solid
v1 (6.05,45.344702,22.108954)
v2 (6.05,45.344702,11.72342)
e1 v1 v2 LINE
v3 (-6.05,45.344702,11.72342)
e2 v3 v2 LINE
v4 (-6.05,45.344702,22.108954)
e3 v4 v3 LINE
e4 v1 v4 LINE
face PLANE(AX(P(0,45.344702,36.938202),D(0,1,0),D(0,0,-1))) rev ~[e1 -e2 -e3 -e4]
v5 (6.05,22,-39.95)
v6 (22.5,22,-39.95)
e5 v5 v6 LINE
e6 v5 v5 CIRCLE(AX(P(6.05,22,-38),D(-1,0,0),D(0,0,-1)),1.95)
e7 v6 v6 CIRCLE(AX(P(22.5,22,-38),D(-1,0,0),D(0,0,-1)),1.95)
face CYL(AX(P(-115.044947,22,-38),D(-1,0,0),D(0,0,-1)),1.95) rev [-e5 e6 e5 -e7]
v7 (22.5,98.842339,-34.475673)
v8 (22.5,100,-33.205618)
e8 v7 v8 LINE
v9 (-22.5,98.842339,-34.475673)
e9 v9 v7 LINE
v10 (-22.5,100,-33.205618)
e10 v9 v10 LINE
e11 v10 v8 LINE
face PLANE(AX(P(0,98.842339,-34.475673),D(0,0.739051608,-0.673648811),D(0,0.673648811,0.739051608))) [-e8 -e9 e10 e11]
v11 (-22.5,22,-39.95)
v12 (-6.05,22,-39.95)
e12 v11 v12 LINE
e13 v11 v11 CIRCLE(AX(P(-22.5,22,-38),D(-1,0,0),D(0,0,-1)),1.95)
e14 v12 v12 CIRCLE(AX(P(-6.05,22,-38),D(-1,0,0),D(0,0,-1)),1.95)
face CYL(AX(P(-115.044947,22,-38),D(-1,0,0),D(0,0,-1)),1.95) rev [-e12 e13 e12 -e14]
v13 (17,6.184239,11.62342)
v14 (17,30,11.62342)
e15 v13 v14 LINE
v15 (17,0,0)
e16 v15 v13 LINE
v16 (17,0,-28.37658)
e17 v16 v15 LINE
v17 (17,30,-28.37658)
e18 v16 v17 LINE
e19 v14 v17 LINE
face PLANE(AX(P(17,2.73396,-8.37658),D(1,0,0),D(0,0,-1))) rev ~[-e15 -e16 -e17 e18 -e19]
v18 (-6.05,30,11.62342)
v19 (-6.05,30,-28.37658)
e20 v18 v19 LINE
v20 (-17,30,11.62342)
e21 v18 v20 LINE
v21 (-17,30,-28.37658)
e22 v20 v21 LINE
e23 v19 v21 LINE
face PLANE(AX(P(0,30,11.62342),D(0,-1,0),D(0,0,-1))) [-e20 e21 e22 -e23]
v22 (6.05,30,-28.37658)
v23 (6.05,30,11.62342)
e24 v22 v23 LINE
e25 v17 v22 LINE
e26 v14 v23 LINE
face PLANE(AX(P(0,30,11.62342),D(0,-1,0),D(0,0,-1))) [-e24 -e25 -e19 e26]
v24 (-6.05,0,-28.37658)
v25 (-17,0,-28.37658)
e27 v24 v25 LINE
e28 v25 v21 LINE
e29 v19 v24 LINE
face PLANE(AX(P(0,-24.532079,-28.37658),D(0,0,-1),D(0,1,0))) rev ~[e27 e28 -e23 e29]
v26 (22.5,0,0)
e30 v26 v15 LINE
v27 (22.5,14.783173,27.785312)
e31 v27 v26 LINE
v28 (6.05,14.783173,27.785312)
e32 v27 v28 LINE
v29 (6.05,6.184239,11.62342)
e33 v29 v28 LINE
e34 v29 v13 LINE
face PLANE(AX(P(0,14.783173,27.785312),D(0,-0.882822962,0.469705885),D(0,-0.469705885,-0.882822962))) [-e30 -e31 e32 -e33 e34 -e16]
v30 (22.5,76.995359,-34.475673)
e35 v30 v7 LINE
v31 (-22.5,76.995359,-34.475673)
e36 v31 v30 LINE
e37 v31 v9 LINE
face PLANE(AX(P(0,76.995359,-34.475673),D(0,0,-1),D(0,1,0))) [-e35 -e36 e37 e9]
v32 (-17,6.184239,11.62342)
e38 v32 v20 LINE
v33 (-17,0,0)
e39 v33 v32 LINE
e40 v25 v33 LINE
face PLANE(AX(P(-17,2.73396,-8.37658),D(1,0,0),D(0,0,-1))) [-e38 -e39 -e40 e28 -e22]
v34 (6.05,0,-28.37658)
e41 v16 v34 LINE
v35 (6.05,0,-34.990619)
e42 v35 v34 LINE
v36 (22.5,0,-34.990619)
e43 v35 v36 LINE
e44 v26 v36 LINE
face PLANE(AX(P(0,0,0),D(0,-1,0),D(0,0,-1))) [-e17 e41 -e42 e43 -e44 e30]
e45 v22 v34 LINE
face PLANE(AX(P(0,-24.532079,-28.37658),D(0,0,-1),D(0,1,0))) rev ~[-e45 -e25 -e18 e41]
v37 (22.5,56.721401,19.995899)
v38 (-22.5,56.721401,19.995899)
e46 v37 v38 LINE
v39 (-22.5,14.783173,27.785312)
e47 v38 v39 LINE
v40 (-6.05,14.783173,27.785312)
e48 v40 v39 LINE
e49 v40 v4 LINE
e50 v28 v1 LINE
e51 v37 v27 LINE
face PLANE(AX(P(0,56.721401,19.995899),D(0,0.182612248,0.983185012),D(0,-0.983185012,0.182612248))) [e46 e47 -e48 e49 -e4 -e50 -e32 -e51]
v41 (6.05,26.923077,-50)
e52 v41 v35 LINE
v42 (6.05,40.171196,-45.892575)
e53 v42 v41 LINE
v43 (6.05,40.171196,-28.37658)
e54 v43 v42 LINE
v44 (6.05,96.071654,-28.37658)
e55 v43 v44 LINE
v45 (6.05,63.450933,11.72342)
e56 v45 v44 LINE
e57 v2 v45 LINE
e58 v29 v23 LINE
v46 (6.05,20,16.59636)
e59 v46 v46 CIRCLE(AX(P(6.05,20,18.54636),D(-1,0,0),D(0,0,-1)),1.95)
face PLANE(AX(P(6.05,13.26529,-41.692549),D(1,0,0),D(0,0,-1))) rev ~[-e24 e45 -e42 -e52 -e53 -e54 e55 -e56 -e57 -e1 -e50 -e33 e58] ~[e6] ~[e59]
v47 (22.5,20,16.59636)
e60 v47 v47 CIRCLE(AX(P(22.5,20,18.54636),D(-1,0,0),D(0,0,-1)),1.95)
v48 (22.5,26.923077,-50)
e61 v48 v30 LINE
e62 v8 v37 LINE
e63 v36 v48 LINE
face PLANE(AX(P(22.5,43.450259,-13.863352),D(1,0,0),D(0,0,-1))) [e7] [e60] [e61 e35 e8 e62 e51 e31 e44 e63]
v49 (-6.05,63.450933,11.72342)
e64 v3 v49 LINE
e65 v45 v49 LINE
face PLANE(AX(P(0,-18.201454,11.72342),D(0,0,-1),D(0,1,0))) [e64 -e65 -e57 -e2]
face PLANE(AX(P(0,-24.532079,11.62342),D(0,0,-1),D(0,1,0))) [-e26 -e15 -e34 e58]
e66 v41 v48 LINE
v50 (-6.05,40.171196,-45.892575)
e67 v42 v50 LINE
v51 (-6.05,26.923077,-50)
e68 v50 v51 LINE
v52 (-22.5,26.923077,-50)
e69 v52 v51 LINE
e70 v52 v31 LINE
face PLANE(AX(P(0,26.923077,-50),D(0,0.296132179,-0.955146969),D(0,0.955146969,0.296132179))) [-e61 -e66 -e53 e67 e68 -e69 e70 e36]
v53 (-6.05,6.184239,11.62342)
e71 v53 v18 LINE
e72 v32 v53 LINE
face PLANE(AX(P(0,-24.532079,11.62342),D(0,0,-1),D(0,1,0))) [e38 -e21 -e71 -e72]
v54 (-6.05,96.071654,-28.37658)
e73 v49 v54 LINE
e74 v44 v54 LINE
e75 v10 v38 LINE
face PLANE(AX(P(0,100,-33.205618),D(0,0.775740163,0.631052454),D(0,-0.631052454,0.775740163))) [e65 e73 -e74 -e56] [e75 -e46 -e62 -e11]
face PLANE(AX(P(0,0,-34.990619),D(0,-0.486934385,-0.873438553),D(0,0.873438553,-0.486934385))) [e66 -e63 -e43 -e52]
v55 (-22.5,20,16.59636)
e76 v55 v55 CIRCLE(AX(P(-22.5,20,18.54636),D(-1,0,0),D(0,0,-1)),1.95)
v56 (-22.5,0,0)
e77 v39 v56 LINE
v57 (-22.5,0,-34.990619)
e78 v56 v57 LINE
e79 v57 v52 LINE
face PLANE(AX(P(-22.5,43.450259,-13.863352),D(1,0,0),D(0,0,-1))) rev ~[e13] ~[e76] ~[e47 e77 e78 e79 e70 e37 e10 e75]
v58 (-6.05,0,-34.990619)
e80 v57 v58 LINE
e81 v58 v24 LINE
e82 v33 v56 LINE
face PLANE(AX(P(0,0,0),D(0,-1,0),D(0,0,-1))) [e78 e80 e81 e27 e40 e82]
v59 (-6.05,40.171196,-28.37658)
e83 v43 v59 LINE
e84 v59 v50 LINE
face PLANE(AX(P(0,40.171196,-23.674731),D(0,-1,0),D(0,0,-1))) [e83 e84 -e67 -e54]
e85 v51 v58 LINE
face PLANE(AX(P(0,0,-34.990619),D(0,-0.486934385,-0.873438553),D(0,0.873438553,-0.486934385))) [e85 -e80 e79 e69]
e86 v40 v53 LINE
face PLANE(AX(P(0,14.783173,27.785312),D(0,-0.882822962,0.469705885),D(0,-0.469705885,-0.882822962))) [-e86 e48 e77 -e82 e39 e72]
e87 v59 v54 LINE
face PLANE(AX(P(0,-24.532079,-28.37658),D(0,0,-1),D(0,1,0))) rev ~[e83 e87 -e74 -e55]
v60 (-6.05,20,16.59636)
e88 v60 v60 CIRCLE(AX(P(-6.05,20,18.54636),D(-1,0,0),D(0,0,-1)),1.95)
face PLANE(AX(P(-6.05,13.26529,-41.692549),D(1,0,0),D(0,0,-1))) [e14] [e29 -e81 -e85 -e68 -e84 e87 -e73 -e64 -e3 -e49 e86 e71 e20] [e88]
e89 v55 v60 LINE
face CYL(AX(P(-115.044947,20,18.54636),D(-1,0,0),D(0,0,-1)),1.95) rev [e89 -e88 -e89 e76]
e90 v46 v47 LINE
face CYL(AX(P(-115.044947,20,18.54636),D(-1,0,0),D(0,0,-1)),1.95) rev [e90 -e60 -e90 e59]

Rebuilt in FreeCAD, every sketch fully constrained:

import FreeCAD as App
import Part
import Sketcher
from FreeCAD import Vector


def add_polygon(sketch, points):
    """Adds a closed chain of lines whose ends are joined by coincident constraints."""
    first, n = sketch.GeometryCount, len(points)
    for a, b in zip(points, points[1:] + points[:1]):
        sketch.addGeometry(Part.LineSegment(App.Vector(*a, 0), App.Vector(*b, 0)), False)
    for i in range(n):
        sketch.addConstraint(Sketcher.Constraint("Coincident", first + i, 2, first + (i + 1) % n, 1))

doc = App.newDocument("Part")
params = doc.addObject("Spreadsheet::Sheet", "Params")
for row, (alias, value) in enumerate([
    ("pad1_length", "45 mm"),
    ("sketch2_height", "40.1 mm"),
    ("pocket1_length", "12.1 mm"),
    ("sketch3_height", "40 mm"),
    ("pocket2_length", "34 mm"),
    ("sketch4_diameter", "3.9 mm"),
    ("pocket4_length", "12.1 mm"),
], start=1):
    params.set(f"A{row}", alias)
    params.set(f"B{row}", "=" + value)
    params.setAlias(f"B{row}", alias)

body = doc.addObject("PartDesign::Body", "Body")

# Sketch on YZ plane
sketch1 = body.newObject("Sketcher::SketchObject", "Sketch")
sketch1.AttachmentSupport = (doc.getObject("YZ_Plane"), [""])
sketch1.MapMode = "FlatFace"
add_polygon(sketch1, [(0, 0), (0, -35), (26.9, -50), (77, -34.5), (98.8, -34.5), (100, -33.2), (56.7, 20), (14.8, 27.8)])  # lines 0-7
sketch1.addConstraint([
    Sketcher.Constraint("Vertical", 0),
    Sketcher.Constraint("Horizontal", 3),
    Sketcher.Constraint("Coincident", 7, 2, -1, 1),
    Sketcher.Constraint("DistanceY", 1, 2, -1, 1, 50.0),
    Sketcher.Constraint("DistanceX", -1, 1, 4, 2, 100.0),
    Sketcher.Constraint("DistanceY", 0, 2, 4, 2, 1.785001),
    Sketcher.Constraint("DistanceX", 3, 1, 3, 2, 21.846981),
    Sketcher.Constraint("DistanceY", 0, 2, 0, 1, 34.990619),
    Sketcher.Constraint("DistanceX", -1, 1, 5, 2, 56.721401),
    Sketcher.Constraint("DistanceY", -1, 1, 5, 2, 19.995899),
    Sketcher.Constraint("Distance", 2, 52.423641),
    Sketcher.Constraint("Distance", 6, 42.655479),
    Sketcher.Constraint("DistanceX", -1, 1, 2, 2, 76.995359),
    Sketcher.Constraint("DistanceY", -1, 1, 6, 2, 27.785312),
    Sketcher.Constraint("DistanceX", 1, 2, 2, 2, 50.072282),
])
pad1 = body.newObject("PartDesign::Pad", "Pad")
pad1.Profile = sketch1
pad1.setExpression("Length", "Params.pad1_length")
pad1.Midplane = True

# Sketch on YZ plane
sketch2 = body.newObject("Sketcher::SketchObject", "Sketch001")
sketch2.AttachmentSupport = (doc.getObject("YZ_Plane"), [""])
sketch2.MapMode = "FlatFace"
add_polygon(sketch2, [(117, 12), (-18, 12), (-18, -28), (117, -28)])  # lines 0-3
sketch2.addConstraint([
    Sketcher.Constraint("Horizontal", 0),
    Sketcher.Constraint("Vertical", 1),
    Sketcher.Constraint("Horizontal", 2),
    Sketcher.Constraint("Vertical", 3),
    Sketcher.Constraint("DistanceY", 1, 2, 1, 1, 40.1),
    Sketcher.Constraint("DistanceX", 0, 2, 0, 1, 134.948719),
    Sketcher.Constraint("DistanceY", -1, 1, 0, 2, 11.72342),
    Sketcher.Constraint("DistanceX", 0, 2, -1, 1, 18.201454),
])
sketch2.setExpression("Constraints[8]", "Params.sketch2_height")
pocket1 = body.newObject("PartDesign::Pocket", "Pocket")
pocket1.Profile = sketch2
pocket1.setExpression("Length", "Params.pocket1_length")
pocket1.Midplane = True

# Sketch on YZ plane
sketch3 = body.newObject("Sketcher::SketchObject", "Sketch002")
sketch3.AttachmentSupport = (doc.getObject("YZ_Plane"), [""])
sketch3.MapMode = "FlatFace"
add_polygon(sketch3, [(30, 12), (-25, 12), (-25, -28), (30, -28)])  # lines 0-3
sketch3.addConstraint([
    Sketcher.Constraint("Horizontal", 0),
    Sketcher.Constraint("Vertical", 1),
    Sketcher.Constraint("Horizontal", 2),
    Sketcher.Constraint("Vertical", 3),
    Sketcher.Constraint("DistanceY", 1, 2, 1, 1, 40.0),
    Sketcher.Constraint("DistanceX", -1, 1, 2, 2, 30.0),
    Sketcher.Constraint("DistanceX", 0, 2, 0, 1, 54.532079),
    Sketcher.Constraint("DistanceY", -1, 1, 0, 2, 11.62342),
])
sketch3.setExpression("Constraints[8]", "Params.sketch3_height")
pocket2 = body.newObject("PartDesign::Pocket", "Pocket001")
pocket2.Profile = sketch3
pocket2.setExpression("Length", "Params.pocket2_length")
pocket2.Midplane = True

# Sketch on YZ plane
sketch4 = body.newObject("Sketcher::SketchObject", "Sketch003")
sketch4.AttachmentSupport = (doc.getObject("YZ_Plane"), [""])
sketch4.MapMode = "FlatFace"
sketch4.addGeometry([
    Part.Circle(Vector(20, 18.5, 0), Vector(0, 0, 1), 1.9),
    Part.Circle(Vector(22, -38, 0), Vector(0, 0, 1), 1.9),
], False)
sketch4.addConstraint([
    Sketcher.Constraint("Equal", 0, 1),
    Sketcher.Constraint("Diameter", 0, 3.9),
    Sketcher.Constraint("DistanceX", -1, 1, 0, 3, 20.0),
    Sketcher.Constraint("DistanceX", -1, 1, 1, 3, 22.0),
    Sketcher.Constraint("DistanceY", 1, 3, -1, 1, 38.0),
    Sketcher.Constraint("DistanceY", -1, 1, 0, 3, 18.54636),
])
sketch4.setExpression("Constraints[1]", "Params.sketch4_diameter")
pocket3 = body.newObject("PartDesign::Pocket", "Pocket002")
pocket3.Profile = sketch4
pocket3.Type = "ThroughAll"
pocket3.Midplane = True

# Sketch on YZ plane
sketch5 = body.newObject("Sketcher::SketchObject", "Sketch004")
sketch5.AttachmentSupport = (doc.getObject("YZ_Plane"), [""])
sketch5.MapMode = "FlatFace"
add_polygon(sketch5, [(45, 37), (-15, 37), (-15, 8), (45, 8)])  # lines 0-3
add_polygon(sketch5, [(40, -24), (-14, -24), (-14, -60), (40, -60)])  # lines 4-7
sketch5.addConstraint([
    Sketcher.Constraint("Horizontal", 0),
    Sketcher.Constraint("Vertical", 1),
    Sketcher.Constraint("Horizontal", 2),
    Sketcher.Constraint("Vertical", 3),
    Sketcher.Constraint("Horizontal", 4),
    Sketcher.Constraint("Vertical", 5),
    Sketcher.Constraint("Horizontal", 6),
    Sketcher.Constraint("Vertical", 7),
    Sketcher.Constraint("DistanceY", 4, 2, 1, 2, 31.718001),
    Sketcher.Constraint("DistanceX", 0, 2, 0, 1, 60.313821),
    Sketcher.Constraint("DistanceX", 4, 2, 4, 1, 53.811811),
    Sketcher.Constraint("DistanceY", 1, 2, 1, 1, 28.894933),
    Sketcher.Constraint("DistanceY", 5, 2, 5, 1, 36.035634),
    Sketcher.Constraint("DistanceX", 0, 2, -1, 1, 14.969118),
    Sketcher.Constraint("DistanceY", -1, 1, 1, 2, 8.04327),
    Sketcher.Constraint("DistanceX", 4, 2, -1, 1, 13.640616),
])
pocket4 = body.newObject("PartDesign::Pocket", "Pocket003")
pocket4.Profile = sketch5
pocket4.setExpression("Length", "Params.pocket4_length")
pocket4.Midplane = True

doc.recompute()
